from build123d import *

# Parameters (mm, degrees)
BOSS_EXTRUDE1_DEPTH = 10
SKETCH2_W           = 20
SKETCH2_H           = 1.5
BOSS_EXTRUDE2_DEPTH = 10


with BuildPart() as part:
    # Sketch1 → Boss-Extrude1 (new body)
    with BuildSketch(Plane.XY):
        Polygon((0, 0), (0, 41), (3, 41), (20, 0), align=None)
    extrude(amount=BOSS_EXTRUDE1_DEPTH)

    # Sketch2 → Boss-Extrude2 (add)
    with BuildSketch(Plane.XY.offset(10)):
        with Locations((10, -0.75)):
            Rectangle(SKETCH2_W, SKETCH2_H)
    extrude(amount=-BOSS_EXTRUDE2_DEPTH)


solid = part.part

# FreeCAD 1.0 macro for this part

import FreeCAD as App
import Part
import Sketcher
Q = App.Units.Quantity

doc = App.newDocument("Part")
body = doc.addObject("PartDesign::Body", "Body")

# Sketch on XY plane
sketch1 = body.newObject("Sketcher::SketchObject", "Sketch")
sketch1.AttachmentSupport = (doc.getObject("XY_Plane"), [""])
sketch1.MapMode = "FlatFace"
sketch1.addGeometry([
    Part.LineSegment(App.Vector(0, 41, 0), App.Vector(0, 0, 0)),
    Part.LineSegment(App.Vector(0, 0, 0), App.Vector(20, 0, 0)),
    Part.LineSegment(App.Vector(20, 0, 0), App.Vector(3, 41, 0)),
    Part.LineSegment(App.Vector(3, 41, 0), App.Vector(0, 41, 0)),
], False)
sketch1.addConstraint([
    Sketcher.Constraint("Coincident", 0, 2, 1, 1),
    Sketcher.Constraint("Coincident", 1, 2, 2, 1),
    Sketcher.Constraint("Coincident", 2, 2, 3, 1),
    Sketcher.Constraint("Coincident", 3, 2, 0, 1),
    Sketcher.Constraint("Vertical", 0),
    Sketcher.Constraint("Horizontal", 1),
    Sketcher.Constraint("Horizontal", 3),
    Sketcher.Constraint("Coincident", 0, 2, -1, 1),
    Sketcher.Constraint("DistanceX", 1, 1, 1, 2, Q("20 mm")),
    Sketcher.Constraint("DistanceX", 3, 2, 3, 1, Q("3 mm")),
    Sketcher.Constraint("DistanceY", 0, 2, 0, 1, Q("41 mm")),
])
pad1 = body.newObject("PartDesign::Pad", "Pad")
pad1.Profile = sketch1
pad1.Length = 10

# Sketch on XY plane
sketch2 = body.newObject("Sketcher::SketchObject", "Sketch001")
sketch2.AttachmentSupport = (doc.getObject("XY_Plane"), [""])
sketch2.MapMode = "FlatFace"
sketch2.AttachmentOffset = App.Placement(App.Vector(0, 0, 10), App.Rotation())
sketch2.addGeometry([
    Part.LineSegment(App.Vector(0, 0, 0), App.Vector(0, -1.5, 0)),
    Part.LineSegment(App.Vector(0, -1.5, 0), App.Vector(20, -1.5, 0)),
    Part.LineSegment(App.Vector(20, -1.5, 0), App.Vector(20, 0, 0)),
    Part.LineSegment(App.Vector(20, 0, 0), App.Vector(0, 0, 0)),
], False)
sketch2.addConstraint([
    Sketcher.Constraint("Coincident", 0, 2, 1, 1),
    Sketcher.Constraint("Coincident", 1, 2, 2, 1),
    Sketcher.Constraint("Coincident", 2, 2, 3, 1),
    Sketcher.Constraint("Coincident", 3, 2, 0, 1),
    Sketcher.Constraint("Vertical", 0),
    Sketcher.Constraint("Horizontal", 1),
    Sketcher.Constraint("Vertical", 2),
    Sketcher.Constraint("Horizontal", 3),
    Sketcher.Constraint("Coincident", 3, 2, -1, 1),
    Sketcher.Constraint("DistanceX", 1, 1, 1, 2, Q("20 mm")),
    Sketcher.Constraint("DistanceY", 0, 2, 0, 1, Q("1.5 mm")),
])
pad2 = body.newObject("PartDesign::Pad", "Pad001")
pad2.Profile = sketch2
pad2.Length = 10
pad2.Reversed = True

doc.recompute()
